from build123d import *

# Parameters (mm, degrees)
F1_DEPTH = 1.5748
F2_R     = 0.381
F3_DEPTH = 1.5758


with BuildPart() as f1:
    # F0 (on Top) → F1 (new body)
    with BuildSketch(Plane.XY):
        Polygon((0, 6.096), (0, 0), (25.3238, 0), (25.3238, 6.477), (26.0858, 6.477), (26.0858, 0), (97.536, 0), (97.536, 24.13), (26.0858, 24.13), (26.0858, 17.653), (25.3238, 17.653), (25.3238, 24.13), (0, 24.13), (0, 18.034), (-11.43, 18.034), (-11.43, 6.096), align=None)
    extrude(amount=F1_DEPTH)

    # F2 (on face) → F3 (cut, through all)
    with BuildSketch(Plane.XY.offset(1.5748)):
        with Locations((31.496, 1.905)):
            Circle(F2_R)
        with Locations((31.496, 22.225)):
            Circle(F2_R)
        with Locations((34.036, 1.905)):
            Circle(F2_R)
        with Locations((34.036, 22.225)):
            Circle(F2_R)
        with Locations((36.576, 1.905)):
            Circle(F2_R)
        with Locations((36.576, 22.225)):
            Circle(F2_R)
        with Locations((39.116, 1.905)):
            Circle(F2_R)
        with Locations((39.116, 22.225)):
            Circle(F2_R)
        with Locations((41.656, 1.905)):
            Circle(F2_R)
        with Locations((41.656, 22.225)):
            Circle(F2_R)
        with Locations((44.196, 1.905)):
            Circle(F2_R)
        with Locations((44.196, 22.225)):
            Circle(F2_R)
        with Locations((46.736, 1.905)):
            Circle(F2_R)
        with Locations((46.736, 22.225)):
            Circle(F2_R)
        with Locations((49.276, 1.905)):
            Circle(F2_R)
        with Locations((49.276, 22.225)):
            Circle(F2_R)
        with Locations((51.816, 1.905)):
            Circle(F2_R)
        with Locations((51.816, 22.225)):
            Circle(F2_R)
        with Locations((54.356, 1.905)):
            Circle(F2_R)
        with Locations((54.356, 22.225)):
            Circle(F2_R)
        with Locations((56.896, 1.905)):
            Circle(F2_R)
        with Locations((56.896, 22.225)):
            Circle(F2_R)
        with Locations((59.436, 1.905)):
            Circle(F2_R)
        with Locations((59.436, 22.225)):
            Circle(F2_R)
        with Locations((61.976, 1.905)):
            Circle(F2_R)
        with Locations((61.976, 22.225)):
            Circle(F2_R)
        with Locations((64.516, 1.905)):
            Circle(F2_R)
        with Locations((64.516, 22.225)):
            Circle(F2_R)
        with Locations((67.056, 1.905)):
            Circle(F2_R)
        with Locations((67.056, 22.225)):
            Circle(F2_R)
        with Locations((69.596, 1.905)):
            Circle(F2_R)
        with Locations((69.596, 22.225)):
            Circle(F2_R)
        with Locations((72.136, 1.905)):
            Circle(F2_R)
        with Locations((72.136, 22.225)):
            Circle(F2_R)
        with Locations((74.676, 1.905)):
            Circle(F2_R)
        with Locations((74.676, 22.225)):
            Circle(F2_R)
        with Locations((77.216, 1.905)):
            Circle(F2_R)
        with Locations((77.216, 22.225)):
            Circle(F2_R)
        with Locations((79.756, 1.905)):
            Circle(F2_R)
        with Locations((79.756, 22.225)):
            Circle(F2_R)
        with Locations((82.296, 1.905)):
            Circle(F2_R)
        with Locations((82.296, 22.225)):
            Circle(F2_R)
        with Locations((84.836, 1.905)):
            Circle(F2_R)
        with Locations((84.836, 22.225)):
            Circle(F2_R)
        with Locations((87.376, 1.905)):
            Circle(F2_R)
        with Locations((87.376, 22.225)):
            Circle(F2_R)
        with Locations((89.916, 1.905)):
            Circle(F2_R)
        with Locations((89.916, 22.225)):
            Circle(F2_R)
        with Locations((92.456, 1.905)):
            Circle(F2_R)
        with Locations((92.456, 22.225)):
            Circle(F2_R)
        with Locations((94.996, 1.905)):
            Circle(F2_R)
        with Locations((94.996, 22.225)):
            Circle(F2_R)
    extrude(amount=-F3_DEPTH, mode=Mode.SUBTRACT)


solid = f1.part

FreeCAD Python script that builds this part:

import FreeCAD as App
import Part
import Sketcher

V = App.Vector
Q = App.Units.Quantity

doc = App.newDocument("Part")
body = doc.addObject("PartDesign::Body", "Body")

# Sketch on XY plane
sketch1 = body.newObject("Sketcher::SketchObject", "Sketch")
sketch1.AttachmentSupport = (doc.getObject("XY_Plane"), [""])
sketch1.MapMode = "FlatFace"
sketch1.addGeometry([
    Part.LineSegment(V(0, 6.1, 0), V(0, 0, 0)),  # 0
    Part.LineSegment(V(0, 0, 0), V(25.3, 0, 0)),  # 1
    Part.LineSegment(V(25.3, 0, 0), V(25.3, 6.5, 0)),  # 2
    Part.LineSegment(V(25.3, 6.5, 0), V(26.1, 6.5, 0)),  # 3
    Part.LineSegment(V(26.1, 6.5, 0), V(26.1, 0, 0)),  # 4
    Part.LineSegment(V(26.1, 0, 0), V(97.5, 0, 0)),  # 5
    Part.LineSegment(V(97.5, 0, 0), V(97.5, 24.1, 0)),  # 6
    Part.LineSegment(V(97.5, 24.1, 0), V(26.1, 24.1, 0)),  # 7
    Part.LineSegment(V(26.1, 24.1, 0), V(26.1, 17.7, 0)),  # 8
    Part.LineSegment(V(26.1, 17.7, 0), V(25.3, 17.7, 0)),  # 9
    Part.LineSegment(V(25.3, 17.7, 0), V(25.3, 24.1, 0)),  # 10
    Part.LineSegment(V(25.3, 24.1, 0), V(0, 24.1, 0)),  # 11
    Part.LineSegment(V(0, 24.1, 0), V(0, 18, 0)),  # 12
    Part.LineSegment(V(0, 18, 0), V(-11.4, 18, 0)),  # 13
    Part.LineSegment(V(-11.4, 18, 0), V(-11.4, 6.1, 0)),  # 14
    Part.LineSegment(V(-11.4, 6.1, 0), V(0, 6.1, 0)),  # 15
], False)
sketch1.addConstraint([
    Sketcher.Constraint("Coincident", 0, 2, 1, 1),
    Sketcher.Constraint("Coincident", 1, 2, 2, 1),
    Sketcher.Constraint("Coincident", 2, 2, 3, 1),
    Sketcher.Constraint("Coincident", 3, 2, 4, 1),
    Sketcher.Constraint("Coincident", 4, 2, 5, 1),
    Sketcher.Constraint("Coincident", 5, 2, 6, 1),
    Sketcher.Constraint("Coincident", 6, 2, 7, 1),
    Sketcher.Constraint("Coincident", 7, 2, 8, 1),
    Sketcher.Constraint("Coincident", 8, 2, 9, 1),
    Sketcher.Constraint("Coincident", 9, 2, 10, 1),
    Sketcher.Constraint("Coincident", 10, 2, 11, 1),
    Sketcher.Constraint("Coincident", 11, 2, 12, 1),
    Sketcher.Constraint("Coincident", 12, 2, 13, 1),
    Sketcher.Constraint("Coincident", 13, 2, 14, 1),
    Sketcher.Constraint("Coincident", 14, 2, 15, 1),
    Sketcher.Constraint("Coincident", 15, 2, 0, 1),
    Sketcher.Constraint("Vertical", 0),
    Sketcher.Constraint("Horizontal", 1),
    Sketcher.Constraint("Vertical", 2),
    Sketcher.Constraint("Horizontal", 3),
    Sketcher.Constraint("Vertical", 4),
    Sketcher.Constraint("Horizontal", 5),
    Sketcher.Constraint("Vertical", 6),
    Sketcher.Constraint("Horizontal", 7),
    Sketcher.Constraint("Vertical", 8),
    Sketcher.Constraint("Horizontal", 9),
    Sketcher.Constraint("Vertical", 10),
    Sketcher.Constraint("Horizontal", 11),
    Sketcher.Constraint("Vertical", 12),
    Sketcher.Constraint("Horizontal", 13),
    Sketcher.Constraint("Vertical", 14),
    Sketcher.Constraint("Horizontal", 15),
    Sketcher.Constraint("Coincident", 0, 2, -1, 1),
    Sketcher.Constraint("PointOnObject", 4, 2, -1),
    Sketcher.Constraint("PointOnObject", 11, 2, -2),
    Sketcher.Constraint("Horizontal", 7, 2, 10, 2),
    Sketcher.Constraint("Vertical", 4, 2, 7, 2),
    Sketcher.Constraint("Vertical", 2, 2, 9, 2),
    Sketcher.Constraint("Equal", 4, 8),
    Sketcher.Constraint("Equal", 0, 12),
    Sketcher.Constraint("DistanceX", 3, 1, 3, 2, Q("0.03 in")),
    Sketcher.Constraint("DistanceX", 13, 2, 13, 1, Q("0.45 in")),
    Sketcher.Constraint("DistanceY", 0, 2, 0, 1, Q("0.24 in")),
    Sketcher.Constraint("DistanceY", 6, 1, 6, 2, Q("0.95 in")),
    Sketcher.Constraint("DistanceX", 1, 1, 1, 2, Q("0.997 in")),
    Sketcher.Constraint("DistanceX", 5, 1, 5, 2, Q("2.813 in")),
    Sketcher.Constraint("DistanceY", 2, 1, 2, 2, Q("0.255 in")),
])
pad1 = body.newObject("PartDesign::Pad", "Pad")
pad1.Profile = sketch1
pad1.Length = Q("0.062 in")

# Sketch on XY plane
sketch2 = body.newObject("Sketcher::SketchObject", "Sketch001")
sketch2.AttachmentSupport = (doc.getObject("XY_Plane"), [""])
sketch2.MapMode = "FlatFace"
sketch2.AttachmentOffset = App.Placement(V(0, 0, 0.062 * 25.4), App.Rotation())
sketch2.addGeometry([
    Part.Circle(V(31.5, 1.91, 0), V(0, 0, 1), 0.38),  # 0
    Part.Circle(V(31.5, 22.23, 0), V(0, 0, 1), 0.38),  # 1
    Part.Circle(V(34.04, 1.91, 0), V(0, 0, 1), 0.38),  # 2
    Part.Circle(V(34.04, 22.23, 0), V(0, 0, 1), 0.38),  # 3
    Part.Circle(V(36.58, 1.91, 0), V(0, 0, 1), 0.38),  # 4
    Part.Circle(V(36.58, 22.23, 0), V(0, 0, 1), 0.38),  # 5
    Part.Circle(V(39.12, 1.91, 0), V(0, 0, 1), 0.38),  # 6
    Part.Circle(V(39.12, 22.23, 0), V(0, 0, 1), 0.38),  # 7
    Part.Circle(V(41.66, 1.91, 0), V(0, 0, 1), 0.38),  # 8
    Part.Circle(V(41.66, 22.23, 0), V(0, 0, 1), 0.38),  # 9
    Part.Circle(V(44.2, 1.91, 0), V(0, 0, 1), 0.38),  # 10
    Part.Circle(V(44.2, 22.23, 0), V(0, 0, 1), 0.38),  # 11
    Part.Circle(V(46.74, 1.91, 0), V(0, 0, 1), 0.38),  # 12
    Part.Circle(V(46.74, 22.23, 0), V(0, 0, 1), 0.38),  # 13
    Part.Circle(V(49.28, 1.91, 0), V(0, 0, 1), 0.38),  # 14
    Part.Circle(V(49.28, 22.23, 0), V(0, 0, 1), 0.38),  # 15
    Part.Circle(V(51.82, 1.91, 0), V(0, 0, 1), 0.38),  # 16
    Part.Circle(V(51.82, 22.23, 0), V(0, 0, 1), 0.38),  # 17
    Part.Circle(V(54.36, 1.91, 0), V(0, 0, 1), 0.38),  # 18
    Part.Circle(V(54.36, 22.23, 0), V(0, 0, 1), 0.38),  # 19
    Part.Circle(V(56.9, 1.91, 0), V(0, 0, 1), 0.38),  # 20
    Part.Circle(V(56.9, 22.23, 0), V(0, 0, 1), 0.38),  # 21
    Part.Circle(V(59.44, 1.91, 0), V(0, 0, 1), 0.38),  # 22
    Part.Circle(V(59.44, 22.23, 0), V(0, 0, 1), 0.38),  # 23
    Part.Circle(V(61.98, 1.91, 0), V(0, 0, 1), 0.38),  # 24
    Part.Circle(V(61.98, 22.23, 0), V(0, 0, 1), 0.38),  # 25
    Part.Circle(V(64.52, 1.91, 0), V(0, 0, 1), 0.38),  # 26
    Part.Circle(V(64.52, 22.23, 0), V(0, 0, 1), 0.38),  # 27
    Part.Circle(V(67.06, 1.91, 0), V(0, 0, 1), 0.38),  # 28
    Part.Circle(V(67.06, 22.23, 0), V(0, 0, 1), 0.38),  # 29
    Part.Circle(V(69.6, 1.91, 0), V(0, 0, 1), 0.38),  # 30
    Part.Circle(V(69.6, 22.23, 0), V(0, 0, 1), 0.38),  # 31
    Part.Circle(V(72.14, 1.91, 0), V(0, 0, 1), 0.38),  # 32
    Part.Circle(V(72.14, 22.23, 0), V(0, 0, 1), 0.38),  # 33
    Part.Circle(V(74.68, 1.91, 0), V(0, 0, 1), 0.38),  # 34
    Part.Circle(V(74.68, 22.23, 0), V(0, 0, 1), 0.38),  # 35
    Part.Circle(V(77.22, 1.91, 0), V(0, 0, 1), 0.38),  # 36
    Part.Circle(V(77.22, 22.23, 0), V(0, 0, 1), 0.38),  # 37
    Part.Circle(V(79.76, 1.91, 0), V(0, 0, 1), 0.38),  # 38
    Part.Circle(V(79.76, 22.23, 0), V(0, 0, 1), 0.38),  # 39
    Part.Circle(V(82.3, 1.91, 0), V(0, 0, 1), 0.38),  # 40
    Part.Circle(V(82.3, 22.23, 0), V(0, 0, 1), 0.38),  # 41
    Part.Circle(V(84.84, 1.91, 0), V(0, 0, 1), 0.38),  # 42
    Part.Circle(V(84.84, 22.23, 0), V(0, 0, 1), 0.38),  # 43
    Part.Circle(V(87.38, 1.91, 0), V(0, 0, 1), 0.38),  # 44
    Part.Circle(V(87.38, 22.23, 0), V(0, 0, 1), 0.38),  # 45
    Part.Circle(V(89.92, 1.91, 0), V(0, 0, 1), 0.38),  # 46
    Part.Circle(V(89.92, 22.23, 0), V(0, 0, 1), 0.38),  # 47
    Part.Circle(V(92.46, 1.91, 0), V(0, 0, 1), 0.38),  # 48
    Part.Circle(V(92.46, 22.23, 0), V(0, 0, 1), 0.38),  # 49
    Part.Circle(V(95, 1.91, 0), V(0, 0, 1), 0.38),  # 50
    Part.Circle(V(95, 22.23, 0), V(0, 0, 1), 0.38),  # 51
], False)
sketch2.addConstraint([
    Sketcher.Constraint("Equal", 0, 1),
    Sketcher.Constraint("Equal", 1, 2),
    Sketcher.Constraint("Equal", 2, 3),
    Sketcher.Constraint("Equal", 3, 4),
    Sketcher.Constraint("Equal", 4, 5),
    Sketcher.Constraint("Equal", 5, 6),
    Sketcher.Constraint("Equal", 6, 7),
    Sketcher.Constraint("Equal", 7, 8),
    Sketcher.Constraint("Equal", 8, 9),
    Sketcher.Constraint("Equal", 9, 10),
    Sketcher.Constraint("Equal", 10, 11),
    Sketcher.Constraint("Equal", 11, 12),
    Sketcher.Constraint("Equal", 12, 13),
    Sketcher.Constraint("Equal", 13, 14),
    Sketcher.Constraint("Equal", 14, 15),
    Sketcher.Constraint("Equal", 15, 16),
    Sketcher.Constraint("Equal", 16, 17),
    Sketcher.Constraint("Equal", 17, 18),
    Sketcher.Constraint("Equal", 18, 19),
    Sketcher.Constraint("Equal", 19, 20),
    Sketcher.Constraint("Equal", 20, 21),
    Sketcher.Constraint("Equal", 21, 22),
    Sketcher.Constraint("Equal", 22, 23),
    Sketcher.Constraint("Equal", 23, 24),
    Sketcher.Constraint("Equal", 24, 25),
    Sketcher.Constraint("Equal", 25, 26),
    Sketcher.Constraint("Equal", 26, 27),
    Sketcher.Constraint("Equal", 27, 28),
    Sketcher.Constraint("Equal", 28, 29),
    Sketcher.Constraint("Equal", 29, 30),
    Sketcher.Constraint("Equal", 30, 31),
    Sketcher.Constraint("Equal", 31, 32),
    Sketcher.Constraint("Equal", 32, 33),
    Sketcher.Constraint("Equal", 33, 34),
    Sketcher.Constraint("Equal", 34, 35),
    Sketcher.Constraint("Equal", 35, 36),
    Sketcher.Constraint("Equal", 36, 37),
    Sketcher.Constraint("Equal", 37, 38),
    Sketcher.Constraint("Equal", 38, 39),
    Sketcher.Constraint("Equal", 39, 40),
    Sketcher.Constraint("Equal", 40, 41),
    Sketcher.Constraint("Equal", 41, 42),
    Sketcher.Constraint("Equal", 42, 43),
    Sketcher.Constraint("Equal", 43, 44),
    Sketcher.Constraint("Equal", 44, 45),
    Sketcher.Constraint("Equal", 45, 46),
    Sketcher.Constraint("Equal", 46, 47),
    Sketcher.Constraint("Equal", 47, 48),
    Sketcher.Constraint("Equal", 48, 49),
    Sketcher.Constraint("Equal", 49, 50),
    Sketcher.Constraint("Equal", 50, 51),
    Sketcher.Constraint("Horizontal", 0, 3, 2, 3),
    Sketcher.Constraint("Horizontal", 1, 3, 3, 3),
    Sketcher.Constraint("Horizontal", 2, 3, 4, 3),
    Sketcher.Constraint("Horizontal", 3, 3, 5, 3),
    Sketcher.Constraint("Horizontal", 4, 3, 6, 3),
    Sketcher.Constraint("Horizontal", 5, 3, 7, 3),
    Sketcher.Constraint("Horizontal", 6, 3, 8, 3),
    Sketcher.Constraint("Horizontal", 7, 3, 9, 3),
    Sketcher.Constraint("Horizontal", 8, 3, 10, 3),
    Sketcher.Constraint("Horizontal", 9, 3, 11, 3),
    Sketcher.Constraint("Horizontal", 10, 3, 12, 3),
    Sketcher.Constraint("Horizontal", 11, 3, 13, 3),
    Sketcher.Constraint("Horizontal", 12, 3, 14, 3),
    Sketcher.Constraint("Horizontal", 13, 3, 15, 3),
    Sketcher.Constraint("Horizontal", 14, 3, 16, 3),
    Sketcher.Constraint("Horizontal", 15, 3, 17, 3),
    Sketcher.Constraint("Horizontal", 16, 3, 18, 3),
    Sketcher.Constraint("Horizontal", 17, 3, 19, 3),
    Sketcher.Constraint("Horizontal", 18, 3, 20, 3),
    Sketcher.Constraint("Horizontal", 19, 3, 21, 3),
    Sketcher.Constraint("Horizontal", 20, 3, 22, 3),
    Sketcher.Constraint("Horizontal", 21, 3, 23, 3),
    Sketcher.Constraint("Horizontal", 22, 3, 24, 3),
    Sketcher.Constraint("Horizontal", 23, 3, 25, 3),
    Sketcher.Constraint("Horizontal", 24, 3, 26, 3),
    Sketcher.Constraint("Horizontal", 25, 3, 27, 3),
    Sketcher.Constraint("Horizontal", 26, 3, 28, 3),
    Sketcher.Constraint("Horizontal", 27, 3, 29, 3),
    Sketcher.Constraint("Horizontal", 28, 3, 30, 3),
    Sketcher.Constraint("Horizontal", 29, 3, 31, 3),
    Sketcher.Constraint("Horizontal", 30, 3, 32, 3),
    Sketcher.Constraint("Horizontal", 31, 3, 33, 3),
    Sketcher.Constraint("Horizontal", 32, 3, 34, 3),
    Sketcher.Constraint("Horizontal", 33, 3, 35, 3),
    Sketcher.Constraint("Horizontal", 34, 3, 36, 3),
    Sketcher.Constraint("Horizontal", 35, 3, 37, 3),
    Sketcher.Constraint("Horizontal", 36, 3, 38, 3),
    Sketcher.Constraint("Horizontal", 37, 3, 39, 3),
    Sketcher.Constraint("Horizontal", 38, 3, 40, 3),
    Sketcher.Constraint("Horizontal", 39, 3, 41, 3),
    Sketcher.Constraint("Horizontal", 40, 3, 42, 3),
    Sketcher.Constraint("Horizontal", 41, 3, 43, 3),
    Sketcher.Constraint("Horizontal", 42, 3, 44, 3),
    Sketcher.Constraint("Horizontal", 43, 3, 45, 3),
    Sketcher.Constraint("Horizontal", 44, 3, 46, 3),
    Sketcher.Constraint("Horizontal", 45, 3, 47, 3),
    Sketcher.Constraint("Horizontal", 46, 3, 48, 3),
    Sketcher.Constraint("Horizontal", 47, 3, 49, 3),
    Sketcher.Constraint("Horizontal", 48, 3, 50, 3),
    Sketcher.Constraint("Horizontal", 49, 3, 51, 3),
    Sketcher.Constraint("Vertical", 0, 3, 1, 3),
    Sketcher.Constraint("Vertical", 2, 3, 3, 3),
    Sketcher.Constraint("Vertical", 4, 3, 5, 3),
    Sketcher.Constraint("Vertical", 6, 3, 7, 3),
    Sketcher.Constraint("Vertical", 8, 3, 9, 3),
    Sketcher.Constraint("Vertical", 10, 3, 11, 3),
    Sketcher.Constraint("Vertical", 12, 3, 13, 3),
    Sketcher.Constraint("Vertical", 14, 3, 15, 3),
    Sketcher.Constraint("Vertical", 16, 3, 17, 3),
    Sketcher.Constraint("Vertical", 18, 3, 19, 3),
    Sketcher.Constraint("Vertical", 20, 3, 21, 3),
    Sketcher.Constraint("Vertical", 22, 3, 23, 3),
    Sketcher.Constraint("Vertical", 24, 3, 25, 3),
    Sketcher.Constraint("Vertical", 26, 3, 27, 3),
    Sketcher.Constraint("Vertical", 28, 3, 29, 3),
    Sketcher.Constraint("Vertical", 30, 3, 31, 3),
    Sketcher.Constraint("Vertical", 32, 3, 33, 3),
    Sketcher.Constraint("Vertical", 34, 3, 35, 3),
    Sketcher.Constraint("Vertical", 36, 3, 37, 3),
    Sketcher.Constraint("Vertical", 38, 3, 39, 3),
    Sketcher.Constraint("Vertical", 40, 3, 41, 3),
    Sketcher.Constraint("Vertical", 42, 3, 43, 3),
    Sketcher.Constraint("Vertical", 44, 3, 45, 3),
    Sketcher.Constraint("Vertical", 46, 3, 47, 3),
    Sketcher.Constraint("Vertical", 48, 3, 49, 3),
    Sketcher.Constraint("Vertical", 50, 3, 51, 3),
    Sketcher.Constraint("Diameter", 0, Q("0.03 in")),
    Sketcher.Constraint("DistanceY", 0, 3, 1, 3, Q("0.8 in")),
    Sketcher.Constraint("DistanceX", 0, 3, 2, 3, Q("0.1 in")),
    Sketcher.Constraint("DistanceX", 2, 3, 4, 3, Q("0.1 in")),
    Sketcher.Constraint("DistanceX", 4, 3, 6, 3, Q("0.1 in")),
    Sketcher.Constraint("DistanceX", 6, 3, 8, 3, Q("0.1 in")),
    Sketcher.Constraint("DistanceX", 8, 3, 10, 3, Q("0.1 in")),
    Sketcher.Constraint("DistanceX", 10, 3, 12, 3, Q("0.1 in")),
    Sketcher.Constraint("DistanceX", 12, 3, 14, 3, Q("0.1 in")),
    Sketcher.Constraint("DistanceX", 14, 3, 16, 3, Q("0.1 in")),
    Sketcher.Constraint("DistanceX", 16, 3, 18, 3, Q("0.1 in")),
    Sketcher.Constraint("DistanceX", 18, 3, 20, 3, Q("0.1 in")),
    Sketcher.Constraint("DistanceX", 20, 3, 22, 3, Q("0.1 in")),
    Sketcher.Constraint("DistanceX", 22, 3, 24, 3, Q("0.1 in")),
    Sketcher.Constraint("DistanceX", 24, 3, 26, 3, Q("0.1 in")),
    Sketcher.Constraint("DistanceX", 26, 3, 28, 3, Q("0.1 in")),
    Sketcher.Constraint("DistanceX", 28, 3, 30, 3, Q("0.1 in")),
    Sketcher.Constraint("DistanceX", 30, 3, 32, 3, Q("0.1 in")),
    Sketcher.Constraint("DistanceX", 32, 3, 34, 3, Q("0.1 in")),
    Sketcher.Constraint("DistanceX", 34, 3, 36, 3, Q("0.1 in")),
    Sketcher.Constraint("DistanceX", 36, 3, 38, 3, Q("0.1 in")),
    Sketcher.Constraint("DistanceX", 38, 3, 40, 3, Q("0.1 in")),
    Sketcher.Constraint("DistanceX", 40, 3, 42, 3, Q("0.1 in")),
    Sketcher.Constraint("DistanceX", 42, 3, 44, 3, Q("0.1 in")),
    Sketcher.Constraint("DistanceX", 44, 3, 46, 3, Q("0.1 in")),
    Sketcher.Constraint("DistanceX", 46, 3, 48, 3, Q("0.1 in")),
    Sketcher.Constraint("DistanceX", 48, 3, 50, 3, Q("0.1 in")),
    Sketcher.Constraint("DistanceX", -1, 1, 0, 3, Q("1.24 in")),
    Sketcher.Constraint("DistanceY", -1, 1, 0, 3, Q("0.075 in")),
])
pocket1 = body.newObject("PartDesign::Pocket", "Pocket")
pocket1.Profile = sketch2
pocket1.Type = "ThroughAll"

doc.recompute()
